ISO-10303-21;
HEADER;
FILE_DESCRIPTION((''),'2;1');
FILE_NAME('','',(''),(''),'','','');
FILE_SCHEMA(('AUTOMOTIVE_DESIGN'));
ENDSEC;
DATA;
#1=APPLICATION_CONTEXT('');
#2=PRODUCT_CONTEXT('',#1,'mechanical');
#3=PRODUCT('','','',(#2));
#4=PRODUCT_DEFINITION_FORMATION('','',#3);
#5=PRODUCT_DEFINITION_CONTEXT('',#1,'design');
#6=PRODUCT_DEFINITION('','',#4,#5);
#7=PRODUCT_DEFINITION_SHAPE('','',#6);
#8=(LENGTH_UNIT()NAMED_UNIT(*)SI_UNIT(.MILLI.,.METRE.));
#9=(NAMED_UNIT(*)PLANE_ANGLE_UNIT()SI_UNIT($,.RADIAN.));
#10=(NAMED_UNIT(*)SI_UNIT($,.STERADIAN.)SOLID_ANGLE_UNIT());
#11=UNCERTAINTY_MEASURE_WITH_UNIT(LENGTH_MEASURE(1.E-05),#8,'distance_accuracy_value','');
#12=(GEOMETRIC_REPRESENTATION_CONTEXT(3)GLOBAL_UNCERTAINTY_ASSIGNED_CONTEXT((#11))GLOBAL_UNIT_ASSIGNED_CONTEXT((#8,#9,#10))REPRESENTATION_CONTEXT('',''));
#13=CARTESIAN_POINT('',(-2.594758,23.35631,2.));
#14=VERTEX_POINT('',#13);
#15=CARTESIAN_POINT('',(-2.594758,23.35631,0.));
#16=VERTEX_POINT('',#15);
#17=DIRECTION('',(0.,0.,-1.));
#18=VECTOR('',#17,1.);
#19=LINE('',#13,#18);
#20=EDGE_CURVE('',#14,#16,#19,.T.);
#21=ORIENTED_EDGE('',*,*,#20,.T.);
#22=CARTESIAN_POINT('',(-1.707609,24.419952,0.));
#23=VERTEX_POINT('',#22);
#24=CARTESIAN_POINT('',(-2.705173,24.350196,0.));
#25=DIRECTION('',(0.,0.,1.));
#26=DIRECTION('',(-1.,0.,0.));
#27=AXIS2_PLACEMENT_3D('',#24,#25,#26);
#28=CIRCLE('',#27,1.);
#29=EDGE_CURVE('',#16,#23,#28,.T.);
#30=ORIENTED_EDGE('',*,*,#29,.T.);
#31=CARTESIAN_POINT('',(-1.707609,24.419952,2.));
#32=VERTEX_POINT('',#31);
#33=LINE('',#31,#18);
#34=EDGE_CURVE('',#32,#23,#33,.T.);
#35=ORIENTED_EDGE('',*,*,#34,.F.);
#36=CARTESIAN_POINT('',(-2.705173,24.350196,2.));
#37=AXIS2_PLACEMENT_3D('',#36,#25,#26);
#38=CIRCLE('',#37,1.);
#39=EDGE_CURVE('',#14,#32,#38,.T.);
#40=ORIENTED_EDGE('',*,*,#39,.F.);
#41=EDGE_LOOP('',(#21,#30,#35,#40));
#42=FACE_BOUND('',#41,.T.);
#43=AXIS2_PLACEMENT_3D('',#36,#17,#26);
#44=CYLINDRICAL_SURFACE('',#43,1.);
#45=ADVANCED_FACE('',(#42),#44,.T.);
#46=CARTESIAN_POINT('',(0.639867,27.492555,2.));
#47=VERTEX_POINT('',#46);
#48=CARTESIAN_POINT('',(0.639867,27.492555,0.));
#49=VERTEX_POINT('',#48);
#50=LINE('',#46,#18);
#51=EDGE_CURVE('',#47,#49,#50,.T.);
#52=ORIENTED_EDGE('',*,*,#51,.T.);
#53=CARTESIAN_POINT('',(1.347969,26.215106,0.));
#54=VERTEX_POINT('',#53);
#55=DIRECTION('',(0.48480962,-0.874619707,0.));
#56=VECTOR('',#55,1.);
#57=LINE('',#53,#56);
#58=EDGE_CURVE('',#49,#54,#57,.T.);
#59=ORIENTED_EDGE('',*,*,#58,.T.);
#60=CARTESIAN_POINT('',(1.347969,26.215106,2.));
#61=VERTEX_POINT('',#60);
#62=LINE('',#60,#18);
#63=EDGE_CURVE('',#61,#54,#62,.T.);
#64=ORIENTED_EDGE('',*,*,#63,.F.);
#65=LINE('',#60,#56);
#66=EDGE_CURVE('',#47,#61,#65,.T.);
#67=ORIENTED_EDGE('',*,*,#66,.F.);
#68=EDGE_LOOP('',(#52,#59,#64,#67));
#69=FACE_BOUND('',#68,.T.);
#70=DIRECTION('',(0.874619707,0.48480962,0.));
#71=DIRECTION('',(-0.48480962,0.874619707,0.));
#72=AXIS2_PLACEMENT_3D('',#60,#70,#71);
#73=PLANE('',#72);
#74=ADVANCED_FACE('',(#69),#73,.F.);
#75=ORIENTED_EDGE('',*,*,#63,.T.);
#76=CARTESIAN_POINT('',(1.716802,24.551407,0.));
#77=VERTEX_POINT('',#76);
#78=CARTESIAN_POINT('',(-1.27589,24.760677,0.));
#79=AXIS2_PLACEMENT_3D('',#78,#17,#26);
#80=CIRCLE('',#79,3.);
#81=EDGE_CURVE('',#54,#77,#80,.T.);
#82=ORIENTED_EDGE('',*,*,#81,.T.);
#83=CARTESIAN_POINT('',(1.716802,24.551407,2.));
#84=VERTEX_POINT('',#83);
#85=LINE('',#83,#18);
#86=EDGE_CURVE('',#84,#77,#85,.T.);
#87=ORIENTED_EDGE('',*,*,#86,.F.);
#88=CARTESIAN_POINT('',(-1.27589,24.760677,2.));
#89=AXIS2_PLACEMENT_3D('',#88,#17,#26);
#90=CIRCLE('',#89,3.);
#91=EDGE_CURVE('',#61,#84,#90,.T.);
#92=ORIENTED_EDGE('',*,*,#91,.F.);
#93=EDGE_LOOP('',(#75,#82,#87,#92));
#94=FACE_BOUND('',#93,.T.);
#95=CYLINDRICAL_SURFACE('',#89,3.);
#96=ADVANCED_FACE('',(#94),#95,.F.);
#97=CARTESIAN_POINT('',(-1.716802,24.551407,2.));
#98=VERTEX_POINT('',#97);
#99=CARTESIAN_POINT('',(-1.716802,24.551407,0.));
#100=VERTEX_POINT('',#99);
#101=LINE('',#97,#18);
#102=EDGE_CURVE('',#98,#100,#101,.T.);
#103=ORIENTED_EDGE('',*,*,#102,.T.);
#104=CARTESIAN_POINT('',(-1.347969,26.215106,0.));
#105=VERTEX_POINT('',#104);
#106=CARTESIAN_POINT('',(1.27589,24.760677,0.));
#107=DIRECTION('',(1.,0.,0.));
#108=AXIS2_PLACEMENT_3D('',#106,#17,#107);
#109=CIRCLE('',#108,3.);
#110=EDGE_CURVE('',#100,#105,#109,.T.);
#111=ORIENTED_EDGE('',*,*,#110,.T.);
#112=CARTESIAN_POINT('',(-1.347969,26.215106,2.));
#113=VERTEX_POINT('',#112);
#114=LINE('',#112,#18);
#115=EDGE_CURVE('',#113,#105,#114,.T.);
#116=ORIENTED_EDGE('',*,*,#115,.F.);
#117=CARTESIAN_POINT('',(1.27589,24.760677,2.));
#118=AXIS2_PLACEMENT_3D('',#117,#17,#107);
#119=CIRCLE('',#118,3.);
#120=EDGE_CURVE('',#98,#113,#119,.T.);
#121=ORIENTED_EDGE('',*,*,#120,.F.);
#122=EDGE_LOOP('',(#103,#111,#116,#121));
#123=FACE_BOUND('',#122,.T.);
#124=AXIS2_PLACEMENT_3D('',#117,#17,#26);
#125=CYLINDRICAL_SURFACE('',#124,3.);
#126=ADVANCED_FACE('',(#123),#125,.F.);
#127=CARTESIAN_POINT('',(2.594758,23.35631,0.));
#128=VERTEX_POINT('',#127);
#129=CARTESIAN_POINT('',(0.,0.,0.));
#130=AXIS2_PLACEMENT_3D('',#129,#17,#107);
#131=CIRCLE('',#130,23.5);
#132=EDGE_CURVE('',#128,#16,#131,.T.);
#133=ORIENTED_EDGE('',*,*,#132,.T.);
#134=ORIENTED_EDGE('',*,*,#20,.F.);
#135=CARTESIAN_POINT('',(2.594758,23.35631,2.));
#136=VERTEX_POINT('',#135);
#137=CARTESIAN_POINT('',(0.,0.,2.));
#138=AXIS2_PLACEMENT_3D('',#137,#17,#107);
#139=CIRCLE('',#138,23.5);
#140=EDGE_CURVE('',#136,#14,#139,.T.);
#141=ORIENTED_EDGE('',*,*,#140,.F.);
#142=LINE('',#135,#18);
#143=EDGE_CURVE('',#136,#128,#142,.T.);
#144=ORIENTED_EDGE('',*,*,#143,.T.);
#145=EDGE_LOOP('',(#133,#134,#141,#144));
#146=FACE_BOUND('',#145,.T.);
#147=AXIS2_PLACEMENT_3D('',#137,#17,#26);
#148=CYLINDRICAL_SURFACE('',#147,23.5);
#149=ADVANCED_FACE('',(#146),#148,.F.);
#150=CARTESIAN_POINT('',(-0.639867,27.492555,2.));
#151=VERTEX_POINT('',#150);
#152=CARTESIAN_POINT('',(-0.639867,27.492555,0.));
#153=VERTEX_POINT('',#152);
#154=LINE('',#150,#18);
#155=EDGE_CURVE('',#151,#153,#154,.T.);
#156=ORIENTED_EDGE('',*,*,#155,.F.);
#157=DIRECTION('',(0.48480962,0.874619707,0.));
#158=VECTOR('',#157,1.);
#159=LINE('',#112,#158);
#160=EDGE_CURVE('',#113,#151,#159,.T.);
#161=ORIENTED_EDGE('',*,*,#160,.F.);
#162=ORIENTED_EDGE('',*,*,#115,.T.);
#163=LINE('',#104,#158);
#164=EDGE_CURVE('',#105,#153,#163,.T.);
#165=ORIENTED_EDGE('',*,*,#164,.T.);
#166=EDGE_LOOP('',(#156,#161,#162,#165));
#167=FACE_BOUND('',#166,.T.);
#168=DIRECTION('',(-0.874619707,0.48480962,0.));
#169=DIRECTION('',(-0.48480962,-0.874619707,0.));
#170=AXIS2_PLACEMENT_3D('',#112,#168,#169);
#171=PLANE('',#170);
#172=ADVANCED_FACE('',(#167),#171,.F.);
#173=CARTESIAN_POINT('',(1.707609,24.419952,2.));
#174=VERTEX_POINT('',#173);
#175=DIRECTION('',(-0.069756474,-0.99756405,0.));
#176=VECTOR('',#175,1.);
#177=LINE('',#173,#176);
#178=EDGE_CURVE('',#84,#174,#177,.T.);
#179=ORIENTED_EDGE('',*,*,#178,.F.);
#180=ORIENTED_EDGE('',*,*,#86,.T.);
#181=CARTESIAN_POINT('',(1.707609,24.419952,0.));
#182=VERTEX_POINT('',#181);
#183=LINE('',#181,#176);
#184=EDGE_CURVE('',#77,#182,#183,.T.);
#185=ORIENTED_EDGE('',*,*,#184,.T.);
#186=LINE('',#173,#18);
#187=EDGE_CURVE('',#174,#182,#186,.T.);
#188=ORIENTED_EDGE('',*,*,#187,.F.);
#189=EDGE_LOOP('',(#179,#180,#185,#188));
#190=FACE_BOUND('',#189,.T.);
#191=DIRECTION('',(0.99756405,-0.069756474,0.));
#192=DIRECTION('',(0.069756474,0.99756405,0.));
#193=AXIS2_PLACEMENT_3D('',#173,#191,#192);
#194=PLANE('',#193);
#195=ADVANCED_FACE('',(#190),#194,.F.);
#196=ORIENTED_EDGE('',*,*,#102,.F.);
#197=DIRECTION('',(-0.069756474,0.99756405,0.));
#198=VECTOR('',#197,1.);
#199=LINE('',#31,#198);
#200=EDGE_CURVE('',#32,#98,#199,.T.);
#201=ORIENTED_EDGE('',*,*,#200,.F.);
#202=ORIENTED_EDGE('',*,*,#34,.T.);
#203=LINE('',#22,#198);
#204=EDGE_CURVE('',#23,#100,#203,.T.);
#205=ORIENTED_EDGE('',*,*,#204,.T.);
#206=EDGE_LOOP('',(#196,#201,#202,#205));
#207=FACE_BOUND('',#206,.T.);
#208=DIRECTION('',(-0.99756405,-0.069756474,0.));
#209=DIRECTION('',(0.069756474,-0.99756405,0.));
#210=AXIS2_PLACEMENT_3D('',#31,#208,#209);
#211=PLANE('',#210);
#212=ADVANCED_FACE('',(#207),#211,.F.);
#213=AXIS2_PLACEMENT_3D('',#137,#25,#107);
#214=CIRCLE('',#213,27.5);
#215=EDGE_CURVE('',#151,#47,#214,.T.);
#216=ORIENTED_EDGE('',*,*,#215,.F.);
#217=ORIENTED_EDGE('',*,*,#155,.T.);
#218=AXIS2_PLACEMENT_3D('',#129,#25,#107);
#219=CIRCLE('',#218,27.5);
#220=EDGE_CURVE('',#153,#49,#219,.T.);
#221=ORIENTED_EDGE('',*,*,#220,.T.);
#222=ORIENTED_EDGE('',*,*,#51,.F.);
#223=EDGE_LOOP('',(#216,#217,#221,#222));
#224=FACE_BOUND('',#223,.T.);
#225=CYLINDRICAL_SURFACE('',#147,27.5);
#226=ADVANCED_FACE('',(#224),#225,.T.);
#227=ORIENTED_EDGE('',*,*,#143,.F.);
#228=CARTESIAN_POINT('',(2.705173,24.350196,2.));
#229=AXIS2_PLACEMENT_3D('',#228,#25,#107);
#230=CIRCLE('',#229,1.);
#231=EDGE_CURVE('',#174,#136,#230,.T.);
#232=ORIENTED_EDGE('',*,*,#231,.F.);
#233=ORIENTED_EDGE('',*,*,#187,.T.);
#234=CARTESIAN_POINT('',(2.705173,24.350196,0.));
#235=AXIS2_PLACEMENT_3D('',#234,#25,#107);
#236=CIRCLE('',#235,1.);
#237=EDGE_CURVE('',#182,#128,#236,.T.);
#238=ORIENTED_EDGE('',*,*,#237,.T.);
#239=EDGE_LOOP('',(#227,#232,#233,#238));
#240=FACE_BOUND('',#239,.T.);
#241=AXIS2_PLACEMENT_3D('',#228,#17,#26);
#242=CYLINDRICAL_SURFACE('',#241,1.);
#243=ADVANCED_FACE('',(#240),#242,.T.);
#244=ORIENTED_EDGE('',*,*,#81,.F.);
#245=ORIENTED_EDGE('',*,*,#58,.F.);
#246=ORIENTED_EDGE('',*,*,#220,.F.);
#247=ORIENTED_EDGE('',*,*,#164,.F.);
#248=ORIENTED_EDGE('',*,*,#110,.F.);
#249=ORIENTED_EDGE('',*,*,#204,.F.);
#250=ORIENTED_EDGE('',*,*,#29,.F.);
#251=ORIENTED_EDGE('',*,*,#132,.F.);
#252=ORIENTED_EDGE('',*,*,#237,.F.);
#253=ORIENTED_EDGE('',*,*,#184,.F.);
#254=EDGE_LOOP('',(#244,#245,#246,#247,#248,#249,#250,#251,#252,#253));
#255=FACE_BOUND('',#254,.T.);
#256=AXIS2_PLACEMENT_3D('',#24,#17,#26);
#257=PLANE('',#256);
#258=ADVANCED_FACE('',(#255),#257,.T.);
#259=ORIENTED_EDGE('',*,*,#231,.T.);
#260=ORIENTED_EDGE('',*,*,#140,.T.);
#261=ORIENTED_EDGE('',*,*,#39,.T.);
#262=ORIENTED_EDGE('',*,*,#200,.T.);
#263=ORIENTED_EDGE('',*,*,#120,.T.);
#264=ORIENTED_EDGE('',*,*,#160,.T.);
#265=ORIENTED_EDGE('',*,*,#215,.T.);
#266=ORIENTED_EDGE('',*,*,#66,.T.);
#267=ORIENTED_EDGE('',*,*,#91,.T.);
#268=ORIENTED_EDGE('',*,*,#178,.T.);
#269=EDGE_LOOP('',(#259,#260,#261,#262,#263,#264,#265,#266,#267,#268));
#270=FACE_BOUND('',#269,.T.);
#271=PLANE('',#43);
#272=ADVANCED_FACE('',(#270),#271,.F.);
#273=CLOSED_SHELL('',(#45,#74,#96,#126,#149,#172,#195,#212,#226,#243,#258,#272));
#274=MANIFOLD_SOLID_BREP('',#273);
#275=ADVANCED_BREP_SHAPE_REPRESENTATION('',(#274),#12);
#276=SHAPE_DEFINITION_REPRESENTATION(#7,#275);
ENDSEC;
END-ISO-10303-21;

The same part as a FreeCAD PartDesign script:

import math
import FreeCAD as App
import Part
import Sketcher
Q = App.Units.Quantity

doc = App.newDocument("Part")
params = doc.addObject("Spreadsheet::Sheet", "Params")
for row, (alias, value) in enumerate([
    ("sketch1_radius", "3 mm"),
    ("sketch1_radius2", "1 mm"),
    ("sketch1_radius3", "27.5 mm"),
    ("sketch1_radius4", "23.5 mm"),
    ("pad1_length", "2 mm"),
], start=1):
    params.set(f"A{row}", alias)
    params.set(f"B{row}", "=" + value)
    params.setAlias(f"B{row}", alias)

body = doc.addObject("PartDesign::Body", "Body")

# Sketch on XY plane
sketch1 = doc.addObject("Sketcher::SketchObject", "Sketch")
body.addObject(sketch1)
sketch1.AttachmentSupport = (doc.XY_Plane, [""])
sketch1.MapMode = "FlatFace"
sketch1.addGeometry(Part.LineSegment(App.Vector(-1.707609, 24.419952, 0), App.Vector(-1.716802, 24.551407, 0)), False)
sketch1.addGeometry(Part.ArcOfCircle(Part.Circle(App.Vector(1.275891, 24.760677, 0), App.Vector(0, 0, 1), 3), math.radians(151), math.radians(184)), False)
sketch1.addGeometry(Part.LineSegment(App.Vector(-1.347969, 26.215106, 0), App.Vector(-0.639867, 27.492555, 0)), False)
sketch1.addGeometry(Part.ArcOfCircle(Part.Circle(App.Vector(0, 0, 0), App.Vector(0, 0, 1), 27.5), math.radians(91.333272), math.radians(448.666728)), False)
sketch1.addGeometry(Part.LineSegment(App.Vector(0.639867, 27.492555, 0), App.Vector(1.347969, 26.215106, 0)), False)
sketch1.addGeometry(Part.ArcOfCircle(Part.Circle(App.Vector(-1.275891, 24.760677, 0), App.Vector(0, 0, 1), 3), math.radians(-4), math.radians(29)), False)
sketch1.addGeometry(Part.LineSegment(App.Vector(1.716802, 24.551407, 0), App.Vector(1.707609, 24.419952, 0)), False)
sketch1.addGeometry(Part.ArcOfCircle(Part.Circle(App.Vector(2.705173, 24.350196, 0), App.Vector(0, 0, 1), 1), math.radians(176), math.radians(263.660747)), False)
sketch1.addGeometry(Part.ArcOfCircle(Part.Circle(App.Vector(0, 0, 0), App.Vector(0, 0, 1), 23.5), math.radians(96.339253), math.radians(443.660747)), False)
sketch1.addGeometry(Part.ArcOfCircle(Part.Circle(App.Vector(-2.705173, 24.350196, 0), App.Vector(0, 0, 1), 1), math.radians(-83.660747), math.radians(4)), False)
sketch1.addConstraint(Sketcher.Constraint("Tangent", 0, 2, 1, 2))
sketch1.addConstraint(Sketcher.Constraint("Tangent", 1, 1, 2, 1))
sketch1.addConstraint(Sketcher.Constraint("Coincident", 2, 2, 3, 1))
sketch1.addConstraint(Sketcher.Constraint("Coincident", 3, 2, 4, 1))
sketch1.addConstraint(Sketcher.Constraint("Tangent", 4, 2, 5, 2))
sketch1.addConstraint(Sketcher.Constraint("Tangent", 5, 1, 6, 1))
sketch1.addConstraint(Sketcher.Constraint("Tangent", 6, 2, 7, 1))
sketch1.addConstraint(Sketcher.Constraint("Tangent", 7, 2, 8, 2))
sketch1.addConstraint(Sketcher.Constraint("Tangent", 8, 1, 9, 1))
sketch1.addConstraint(Sketcher.Constraint("Tangent", 9, 2, 0, 1))
sketch1.addConstraint(Sketcher.Constraint("Coincident", 3, 3, -1, 1))
sketch1.addConstraint(Sketcher.Constraint("Coincident", 8, 3, -1, 1))
sketch1.addConstraint(Sketcher.Constraint("Equal", 1, 5))
sketch1.addConstraint(Sketcher.Constraint("Equal", 7, 9))
sketch1.addConstraint(Sketcher.Constraint("Symmetric", 1, 3, 5, 3, -2))
sketch1.addConstraint(Sketcher.Constraint("Horizontal", 7, 3, 9, 3))
sketch1.addConstraint(Sketcher.Constraint("Horizontal", 2, 2, 3, 2))
sketch1.addConstraint(Sketcher.Constraint("Radius", 1, Q("3 mm")))
sketch1.addConstraint(Sketcher.Constraint("Radius", 7, Q("1 mm")))
sketch1.addConstraint(Sketcher.Constraint("Radius", 3, Q("27.5 mm")))
sketch1.addConstraint(Sketcher.Constraint("Radius", 8, Q("23.5 mm")))
sketch1.addConstraint(Sketcher.Constraint("Angle", 0, Q("94 deg")))
sketch1.addConstraint(Sketcher.Constraint("Angle", 2, Q("61 deg")))
sketch1.addConstraint(Sketcher.Constraint("DistanceX", 0, 2, -1, 1, Q("1.716802 mm")))
sketch1.addConstraint(Sketcher.Constraint("DistanceX", 1, 1, 2, 2, Q("0.708102 mm")))
sketch1.setExpression("Constraints[17]", "Params.sketch1_radius")
sketch1.setExpression("Constraints[18]", "Params.sketch1_radius2")
sketch1.setExpression("Constraints[19]", "Params.sketch1_radius3")
sketch1.setExpression("Constraints[20]", "Params.sketch1_radius4")
pad1 = doc.addObject("PartDesign::Pad", "Pad")
body.addObject(pad1)
pad1.Profile = sketch1
pad1.setExpression("Length", "Params.pad1_length")

doc.recompute()
